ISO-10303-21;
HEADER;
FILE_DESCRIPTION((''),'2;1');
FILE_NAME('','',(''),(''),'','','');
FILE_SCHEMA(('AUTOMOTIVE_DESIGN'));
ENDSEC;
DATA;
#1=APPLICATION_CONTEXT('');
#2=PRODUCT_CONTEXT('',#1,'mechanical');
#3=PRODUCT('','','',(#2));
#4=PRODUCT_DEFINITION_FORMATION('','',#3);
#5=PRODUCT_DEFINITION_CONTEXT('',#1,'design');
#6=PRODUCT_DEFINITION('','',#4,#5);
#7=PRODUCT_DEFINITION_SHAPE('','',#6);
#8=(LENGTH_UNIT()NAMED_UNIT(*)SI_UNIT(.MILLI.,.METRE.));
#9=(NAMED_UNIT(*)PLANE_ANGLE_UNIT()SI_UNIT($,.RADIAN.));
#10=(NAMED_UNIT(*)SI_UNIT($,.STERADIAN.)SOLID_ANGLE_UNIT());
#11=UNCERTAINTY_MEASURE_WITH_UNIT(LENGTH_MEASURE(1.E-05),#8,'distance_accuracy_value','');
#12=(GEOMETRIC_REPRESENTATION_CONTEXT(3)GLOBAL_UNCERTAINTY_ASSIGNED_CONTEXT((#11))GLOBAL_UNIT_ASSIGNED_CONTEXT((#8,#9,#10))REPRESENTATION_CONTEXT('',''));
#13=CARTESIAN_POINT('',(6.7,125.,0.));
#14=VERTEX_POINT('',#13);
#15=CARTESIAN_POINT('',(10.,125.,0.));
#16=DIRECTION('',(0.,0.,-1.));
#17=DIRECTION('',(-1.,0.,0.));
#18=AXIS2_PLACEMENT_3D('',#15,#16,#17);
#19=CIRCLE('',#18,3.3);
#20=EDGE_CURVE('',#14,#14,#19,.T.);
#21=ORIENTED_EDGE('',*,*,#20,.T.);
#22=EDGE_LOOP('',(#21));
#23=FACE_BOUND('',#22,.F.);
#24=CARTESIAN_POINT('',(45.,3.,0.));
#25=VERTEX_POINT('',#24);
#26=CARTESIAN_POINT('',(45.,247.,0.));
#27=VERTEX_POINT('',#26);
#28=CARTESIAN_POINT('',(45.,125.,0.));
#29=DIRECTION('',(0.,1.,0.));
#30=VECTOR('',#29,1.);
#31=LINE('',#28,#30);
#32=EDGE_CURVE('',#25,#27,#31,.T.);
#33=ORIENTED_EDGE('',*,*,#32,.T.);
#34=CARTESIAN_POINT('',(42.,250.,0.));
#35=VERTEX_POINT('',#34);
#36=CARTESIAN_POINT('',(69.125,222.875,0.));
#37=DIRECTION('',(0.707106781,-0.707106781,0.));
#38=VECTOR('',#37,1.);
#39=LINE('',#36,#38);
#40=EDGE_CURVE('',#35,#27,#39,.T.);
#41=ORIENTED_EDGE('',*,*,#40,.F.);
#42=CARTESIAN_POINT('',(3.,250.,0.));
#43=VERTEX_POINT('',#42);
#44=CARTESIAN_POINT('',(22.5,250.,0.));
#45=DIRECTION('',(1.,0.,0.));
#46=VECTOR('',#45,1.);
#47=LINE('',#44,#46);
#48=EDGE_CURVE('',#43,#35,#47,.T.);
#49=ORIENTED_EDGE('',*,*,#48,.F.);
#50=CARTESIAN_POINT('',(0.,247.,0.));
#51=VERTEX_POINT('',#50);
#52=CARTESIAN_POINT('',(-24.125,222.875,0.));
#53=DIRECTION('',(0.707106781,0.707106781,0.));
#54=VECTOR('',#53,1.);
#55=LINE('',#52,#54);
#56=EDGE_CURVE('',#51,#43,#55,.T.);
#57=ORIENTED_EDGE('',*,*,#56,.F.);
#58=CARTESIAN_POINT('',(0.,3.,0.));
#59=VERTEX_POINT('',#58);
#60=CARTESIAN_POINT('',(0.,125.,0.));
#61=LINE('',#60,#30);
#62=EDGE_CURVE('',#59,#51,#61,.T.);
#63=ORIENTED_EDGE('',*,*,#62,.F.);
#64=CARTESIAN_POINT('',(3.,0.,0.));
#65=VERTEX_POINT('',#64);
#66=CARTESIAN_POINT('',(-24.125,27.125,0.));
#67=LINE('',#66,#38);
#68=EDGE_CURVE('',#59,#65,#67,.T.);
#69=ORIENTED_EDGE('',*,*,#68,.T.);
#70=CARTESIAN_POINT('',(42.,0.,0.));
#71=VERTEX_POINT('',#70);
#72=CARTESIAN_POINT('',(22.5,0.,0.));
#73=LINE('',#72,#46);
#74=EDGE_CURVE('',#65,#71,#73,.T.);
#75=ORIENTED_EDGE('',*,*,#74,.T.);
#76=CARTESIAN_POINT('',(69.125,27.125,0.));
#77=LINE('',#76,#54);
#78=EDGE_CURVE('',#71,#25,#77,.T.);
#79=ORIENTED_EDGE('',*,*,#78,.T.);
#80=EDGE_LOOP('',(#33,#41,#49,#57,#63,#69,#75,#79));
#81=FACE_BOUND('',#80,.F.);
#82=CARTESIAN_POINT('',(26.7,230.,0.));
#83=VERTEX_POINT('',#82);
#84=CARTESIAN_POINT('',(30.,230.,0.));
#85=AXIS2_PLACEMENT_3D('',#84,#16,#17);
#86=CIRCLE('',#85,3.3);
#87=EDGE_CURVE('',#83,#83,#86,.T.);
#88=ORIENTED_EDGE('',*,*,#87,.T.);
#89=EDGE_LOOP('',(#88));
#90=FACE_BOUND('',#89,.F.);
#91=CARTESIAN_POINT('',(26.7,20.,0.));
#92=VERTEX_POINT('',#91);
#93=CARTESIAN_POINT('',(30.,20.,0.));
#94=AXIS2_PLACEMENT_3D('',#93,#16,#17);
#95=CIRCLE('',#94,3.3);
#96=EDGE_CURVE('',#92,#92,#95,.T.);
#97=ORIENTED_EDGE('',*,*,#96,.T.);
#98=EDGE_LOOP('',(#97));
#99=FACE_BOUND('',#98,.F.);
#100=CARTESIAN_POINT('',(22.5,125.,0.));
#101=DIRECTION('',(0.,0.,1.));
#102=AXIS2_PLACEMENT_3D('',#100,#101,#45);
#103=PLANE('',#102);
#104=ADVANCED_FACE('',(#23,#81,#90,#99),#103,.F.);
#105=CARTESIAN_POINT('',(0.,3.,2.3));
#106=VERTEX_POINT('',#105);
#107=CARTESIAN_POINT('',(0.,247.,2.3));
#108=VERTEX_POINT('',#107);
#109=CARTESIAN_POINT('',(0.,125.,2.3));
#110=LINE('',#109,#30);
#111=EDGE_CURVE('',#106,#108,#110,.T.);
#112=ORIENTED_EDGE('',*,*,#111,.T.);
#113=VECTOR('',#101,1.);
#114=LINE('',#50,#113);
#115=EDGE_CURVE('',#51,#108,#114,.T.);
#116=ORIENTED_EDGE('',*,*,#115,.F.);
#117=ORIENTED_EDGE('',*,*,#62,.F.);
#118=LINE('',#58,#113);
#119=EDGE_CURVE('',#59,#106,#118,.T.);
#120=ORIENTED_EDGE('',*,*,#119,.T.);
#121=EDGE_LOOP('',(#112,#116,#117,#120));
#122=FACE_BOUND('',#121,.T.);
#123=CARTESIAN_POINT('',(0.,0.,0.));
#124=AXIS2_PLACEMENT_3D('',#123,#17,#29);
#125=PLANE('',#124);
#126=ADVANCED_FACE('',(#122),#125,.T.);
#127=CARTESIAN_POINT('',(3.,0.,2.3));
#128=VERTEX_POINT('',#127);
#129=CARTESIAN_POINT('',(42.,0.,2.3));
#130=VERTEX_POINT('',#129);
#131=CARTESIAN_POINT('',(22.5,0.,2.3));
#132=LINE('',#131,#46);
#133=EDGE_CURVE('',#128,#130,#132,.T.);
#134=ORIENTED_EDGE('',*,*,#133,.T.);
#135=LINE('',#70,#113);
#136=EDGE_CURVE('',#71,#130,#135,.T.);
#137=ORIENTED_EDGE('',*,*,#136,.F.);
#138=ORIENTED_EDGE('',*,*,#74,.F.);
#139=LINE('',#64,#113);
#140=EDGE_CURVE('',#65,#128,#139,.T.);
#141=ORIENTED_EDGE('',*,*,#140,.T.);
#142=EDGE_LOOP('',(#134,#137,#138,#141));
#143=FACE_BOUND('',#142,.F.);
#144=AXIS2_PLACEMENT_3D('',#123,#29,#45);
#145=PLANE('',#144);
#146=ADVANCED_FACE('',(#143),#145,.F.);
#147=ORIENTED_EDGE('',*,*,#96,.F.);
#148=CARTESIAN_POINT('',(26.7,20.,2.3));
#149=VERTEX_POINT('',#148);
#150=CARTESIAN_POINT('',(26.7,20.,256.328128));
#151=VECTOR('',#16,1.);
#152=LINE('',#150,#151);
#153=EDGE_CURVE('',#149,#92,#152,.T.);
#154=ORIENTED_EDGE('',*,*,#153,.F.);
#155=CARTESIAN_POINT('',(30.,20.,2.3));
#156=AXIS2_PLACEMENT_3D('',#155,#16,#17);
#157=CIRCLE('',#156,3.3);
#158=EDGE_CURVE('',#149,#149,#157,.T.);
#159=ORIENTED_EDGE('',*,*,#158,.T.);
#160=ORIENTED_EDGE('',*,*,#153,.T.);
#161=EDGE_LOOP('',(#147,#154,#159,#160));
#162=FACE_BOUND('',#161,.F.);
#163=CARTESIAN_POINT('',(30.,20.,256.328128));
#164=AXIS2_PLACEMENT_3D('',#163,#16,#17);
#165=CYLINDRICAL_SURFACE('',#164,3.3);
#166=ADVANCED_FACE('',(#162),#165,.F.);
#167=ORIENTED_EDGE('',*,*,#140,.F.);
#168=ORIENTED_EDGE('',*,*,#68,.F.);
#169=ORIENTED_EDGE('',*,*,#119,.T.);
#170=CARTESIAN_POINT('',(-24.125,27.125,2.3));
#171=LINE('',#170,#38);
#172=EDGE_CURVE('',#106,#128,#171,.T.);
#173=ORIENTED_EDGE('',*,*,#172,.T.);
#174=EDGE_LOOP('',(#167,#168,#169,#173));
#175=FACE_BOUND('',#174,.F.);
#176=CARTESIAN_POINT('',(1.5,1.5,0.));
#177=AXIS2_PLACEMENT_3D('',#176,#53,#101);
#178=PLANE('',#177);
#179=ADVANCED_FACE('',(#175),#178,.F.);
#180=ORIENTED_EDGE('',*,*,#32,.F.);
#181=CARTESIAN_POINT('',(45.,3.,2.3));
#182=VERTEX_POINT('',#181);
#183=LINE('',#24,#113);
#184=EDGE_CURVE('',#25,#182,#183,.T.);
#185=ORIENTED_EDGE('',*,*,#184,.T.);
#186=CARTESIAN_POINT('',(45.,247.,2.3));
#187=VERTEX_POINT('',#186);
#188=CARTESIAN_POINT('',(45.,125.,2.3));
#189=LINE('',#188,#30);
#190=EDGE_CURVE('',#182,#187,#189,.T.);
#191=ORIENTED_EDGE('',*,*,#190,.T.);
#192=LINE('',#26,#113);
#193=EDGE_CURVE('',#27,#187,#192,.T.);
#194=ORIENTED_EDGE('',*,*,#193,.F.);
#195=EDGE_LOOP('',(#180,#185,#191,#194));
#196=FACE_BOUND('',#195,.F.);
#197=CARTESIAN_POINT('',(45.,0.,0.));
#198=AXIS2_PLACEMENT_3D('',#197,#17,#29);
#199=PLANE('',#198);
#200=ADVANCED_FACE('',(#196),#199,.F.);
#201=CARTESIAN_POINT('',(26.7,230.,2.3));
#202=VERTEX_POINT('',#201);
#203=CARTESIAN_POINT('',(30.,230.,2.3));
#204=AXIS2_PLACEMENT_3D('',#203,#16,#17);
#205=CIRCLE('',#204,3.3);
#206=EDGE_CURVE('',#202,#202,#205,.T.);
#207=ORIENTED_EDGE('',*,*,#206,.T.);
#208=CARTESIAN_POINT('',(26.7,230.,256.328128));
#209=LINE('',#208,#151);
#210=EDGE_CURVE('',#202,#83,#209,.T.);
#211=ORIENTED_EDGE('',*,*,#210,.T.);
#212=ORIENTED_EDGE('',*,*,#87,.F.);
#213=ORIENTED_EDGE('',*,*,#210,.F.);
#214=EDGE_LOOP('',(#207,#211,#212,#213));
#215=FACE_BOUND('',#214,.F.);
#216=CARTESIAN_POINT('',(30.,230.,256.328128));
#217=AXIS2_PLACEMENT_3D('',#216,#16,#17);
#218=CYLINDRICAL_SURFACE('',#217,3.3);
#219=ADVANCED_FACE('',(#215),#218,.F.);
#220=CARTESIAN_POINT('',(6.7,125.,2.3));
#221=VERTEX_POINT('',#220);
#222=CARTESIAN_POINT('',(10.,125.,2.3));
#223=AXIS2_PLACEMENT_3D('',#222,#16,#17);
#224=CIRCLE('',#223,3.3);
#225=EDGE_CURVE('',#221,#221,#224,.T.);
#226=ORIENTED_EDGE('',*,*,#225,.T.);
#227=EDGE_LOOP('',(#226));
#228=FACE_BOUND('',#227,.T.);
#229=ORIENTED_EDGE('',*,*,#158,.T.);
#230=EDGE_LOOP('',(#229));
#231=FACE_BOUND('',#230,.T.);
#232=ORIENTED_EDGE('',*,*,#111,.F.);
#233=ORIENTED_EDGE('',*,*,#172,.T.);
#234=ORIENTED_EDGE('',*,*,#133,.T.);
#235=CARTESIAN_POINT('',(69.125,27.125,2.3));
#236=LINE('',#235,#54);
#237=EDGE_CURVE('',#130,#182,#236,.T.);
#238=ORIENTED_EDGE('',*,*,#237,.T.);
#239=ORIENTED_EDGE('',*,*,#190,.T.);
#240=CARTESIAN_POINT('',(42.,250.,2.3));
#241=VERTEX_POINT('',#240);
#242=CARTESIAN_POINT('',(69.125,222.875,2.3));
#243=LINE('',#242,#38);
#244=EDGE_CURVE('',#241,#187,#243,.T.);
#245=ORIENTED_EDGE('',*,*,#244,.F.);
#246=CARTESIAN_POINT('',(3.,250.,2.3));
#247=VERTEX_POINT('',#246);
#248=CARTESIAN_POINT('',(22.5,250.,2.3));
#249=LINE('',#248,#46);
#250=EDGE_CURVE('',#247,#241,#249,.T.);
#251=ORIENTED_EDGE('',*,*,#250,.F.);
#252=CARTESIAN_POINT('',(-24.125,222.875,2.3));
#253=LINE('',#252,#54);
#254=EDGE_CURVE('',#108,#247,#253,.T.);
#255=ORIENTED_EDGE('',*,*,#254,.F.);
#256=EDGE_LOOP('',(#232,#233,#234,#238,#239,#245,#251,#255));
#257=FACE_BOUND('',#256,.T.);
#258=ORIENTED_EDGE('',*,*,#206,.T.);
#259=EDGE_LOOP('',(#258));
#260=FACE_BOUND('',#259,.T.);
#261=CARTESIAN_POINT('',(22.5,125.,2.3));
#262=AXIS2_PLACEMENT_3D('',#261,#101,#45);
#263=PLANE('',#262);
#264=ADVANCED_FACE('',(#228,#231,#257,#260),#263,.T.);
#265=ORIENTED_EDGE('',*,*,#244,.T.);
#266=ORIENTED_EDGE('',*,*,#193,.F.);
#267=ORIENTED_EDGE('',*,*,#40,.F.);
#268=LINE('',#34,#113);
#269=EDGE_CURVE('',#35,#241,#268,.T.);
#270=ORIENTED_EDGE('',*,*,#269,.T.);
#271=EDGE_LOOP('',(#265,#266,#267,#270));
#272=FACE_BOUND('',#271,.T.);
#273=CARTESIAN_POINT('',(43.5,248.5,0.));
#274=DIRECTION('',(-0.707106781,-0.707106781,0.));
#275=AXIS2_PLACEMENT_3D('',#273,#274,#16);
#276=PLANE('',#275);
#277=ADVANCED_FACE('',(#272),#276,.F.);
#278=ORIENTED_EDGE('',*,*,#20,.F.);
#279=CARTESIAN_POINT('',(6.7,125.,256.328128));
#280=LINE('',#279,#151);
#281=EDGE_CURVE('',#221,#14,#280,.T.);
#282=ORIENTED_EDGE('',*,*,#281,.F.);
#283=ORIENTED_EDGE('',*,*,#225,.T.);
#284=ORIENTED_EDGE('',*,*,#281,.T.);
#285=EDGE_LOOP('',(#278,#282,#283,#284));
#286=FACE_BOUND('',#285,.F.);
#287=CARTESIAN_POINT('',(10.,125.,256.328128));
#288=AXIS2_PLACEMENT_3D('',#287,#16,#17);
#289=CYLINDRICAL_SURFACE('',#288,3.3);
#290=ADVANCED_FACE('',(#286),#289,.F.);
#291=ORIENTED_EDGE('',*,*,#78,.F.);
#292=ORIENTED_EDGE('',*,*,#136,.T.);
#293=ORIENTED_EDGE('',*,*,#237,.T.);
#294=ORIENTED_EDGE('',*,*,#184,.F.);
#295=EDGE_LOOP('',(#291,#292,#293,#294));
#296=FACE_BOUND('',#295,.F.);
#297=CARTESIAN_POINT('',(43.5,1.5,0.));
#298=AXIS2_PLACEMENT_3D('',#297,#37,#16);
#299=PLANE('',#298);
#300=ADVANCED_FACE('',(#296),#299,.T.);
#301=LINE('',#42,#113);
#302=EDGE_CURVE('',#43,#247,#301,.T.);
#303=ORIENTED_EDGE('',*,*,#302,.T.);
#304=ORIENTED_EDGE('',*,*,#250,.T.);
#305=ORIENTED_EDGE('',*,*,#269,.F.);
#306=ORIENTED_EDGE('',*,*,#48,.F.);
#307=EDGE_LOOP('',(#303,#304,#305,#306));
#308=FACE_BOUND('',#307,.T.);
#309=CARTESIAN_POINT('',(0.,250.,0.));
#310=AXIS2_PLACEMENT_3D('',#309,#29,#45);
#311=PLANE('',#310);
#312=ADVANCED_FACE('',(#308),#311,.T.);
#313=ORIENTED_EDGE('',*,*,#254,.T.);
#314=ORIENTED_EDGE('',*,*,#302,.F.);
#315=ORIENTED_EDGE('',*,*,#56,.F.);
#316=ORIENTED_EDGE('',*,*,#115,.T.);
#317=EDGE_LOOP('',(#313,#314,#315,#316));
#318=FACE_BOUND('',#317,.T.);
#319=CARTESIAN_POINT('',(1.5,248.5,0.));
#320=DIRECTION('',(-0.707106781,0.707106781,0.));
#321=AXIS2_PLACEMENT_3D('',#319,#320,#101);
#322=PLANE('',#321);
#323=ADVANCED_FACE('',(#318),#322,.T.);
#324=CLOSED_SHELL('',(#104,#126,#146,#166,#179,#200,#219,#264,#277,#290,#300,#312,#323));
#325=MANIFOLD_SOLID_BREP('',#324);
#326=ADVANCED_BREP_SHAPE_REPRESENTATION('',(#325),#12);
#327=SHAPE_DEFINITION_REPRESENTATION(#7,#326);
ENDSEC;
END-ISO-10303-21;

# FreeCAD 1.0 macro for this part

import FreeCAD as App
import Part
import Sketcher
Q = App.Units.Quantity


def edges_at(feature, points):
    """Names of the edges that pass closest to the given points."""
    edges = feature.Shape.Edges
    near = lambda p: min(range(len(edges)), key=lambda i: edges[i].distToShape(Part.Vertex(*p))[0])
    return sorted({f"Edge{near(p) + 1}" for p in points})

doc = App.newDocument("Part")
body = doc.addObject("PartDesign::Body", "Body")

# Sketch on XY plane
sketch1 = doc.addObject("Sketcher::SketchObject", "Sketch")
body.addObject(sketch1)
sketch1.AttachmentSupport = (doc.XY_Plane, [""])
sketch1.MapMode = "FlatFace"
sketch1.addGeometry([
    Part.LineSegment(App.Vector(0, 250, 0), App.Vector(0, 0, 0)),
    Part.LineSegment(App.Vector(0, 0, 0), App.Vector(45, 0, 0)),
    Part.LineSegment(App.Vector(45, 0, 0), App.Vector(45, 250, 0)),
    Part.LineSegment(App.Vector(45, 250, 0), App.Vector(0, 250, 0)),
], False)
sketch1.addConstraint([
    Sketcher.Constraint("Coincident", 0, 2, 1, 1),
    Sketcher.Constraint("Coincident", 1, 2, 2, 1),
    Sketcher.Constraint("Coincident", 2, 2, 3, 1),
    Sketcher.Constraint("Coincident", 3, 2, 0, 1),
    Sketcher.Constraint("Vertical", 0),
    Sketcher.Constraint("Horizontal", 1),
    Sketcher.Constraint("Vertical", 2),
    Sketcher.Constraint("Horizontal", 3),
    Sketcher.Constraint("Coincident", 0, 2, -1, 1),
    Sketcher.Constraint("DistanceX", 1, 1, 1, 2, Q("45 mm")),
    Sketcher.Constraint("DistanceY", 0, 2, 0, 1, Q("250 mm")),
])
pad1 = doc.addObject("PartDesign::Pad", "Pad")
body.addObject(pad1)
pad1.Profile = sketch1
pad1.Length = 2.3

# Sketch on XY plane
sketch2 = doc.addObject("Sketcher::SketchObject", "Sketch001")
body.addObject(sketch2)
sketch2.AttachmentSupport = (doc.XY_Plane, [""])
sketch2.MapMode = "FlatFace"
sketch2.AttachmentOffset = App.Placement(App.Vector(0, 0, 2.3), App.Rotation())
sketch2.addGeometry([
    Part.Circle(App.Vector(30, 230, 0), App.Vector(0, 0, 1), 3.3),
    Part.Circle(App.Vector(10, 125, 0), App.Vector(0, 0, 1), 3.3),
    Part.Circle(App.Vector(30, 20, 0), App.Vector(0, 0, 1), 3.3),
], False)
sketch2.addConstraint([
    Sketcher.Constraint("Equal", 0, 1),
    Sketcher.Constraint("Equal", 1, 2),
    Sketcher.Constraint("Vertical", 0, 3, 2, 3),
    Sketcher.Constraint("Diameter", 0, Q("6.6 mm")),
    Sketcher.Constraint("DistanceX", -1, 1, 0, 3, Q("30 mm")),
    Sketcher.Constraint("DistanceY", -1, 1, 0, 3, Q("230 mm")),
    Sketcher.Constraint("DistanceX", -1, 1, 1, 3, Q("10 mm")),
    Sketcher.Constraint("DistanceY", -1, 1, 1, 3, Q("125 mm")),
    Sketcher.Constraint("DistanceY", -1, 1, 2, 3, Q("20 mm")),
])
doc.recompute()
hole = doc.addObject("PartDesign::Hole", "Hole")
body.addObject(hole)
hole.Profile = sketch2
hole.ThreadType = "None"
hole.Diameter = 6.6
hole.DepthType = "ThroughAll"
doc.recompute()

chamfer = doc.addObject("PartDesign::Chamfer", "Chamfer")
body.addObject(chamfer)
chamfer.Base = (hole, edges_at(hole, [
    (0, 250, 1.15),
    (45, 250, 1.15),
    (0, 0, 1.15),
    (45, 0, 1.15),
]))
chamfer.Size = 3

doc.recompute()
